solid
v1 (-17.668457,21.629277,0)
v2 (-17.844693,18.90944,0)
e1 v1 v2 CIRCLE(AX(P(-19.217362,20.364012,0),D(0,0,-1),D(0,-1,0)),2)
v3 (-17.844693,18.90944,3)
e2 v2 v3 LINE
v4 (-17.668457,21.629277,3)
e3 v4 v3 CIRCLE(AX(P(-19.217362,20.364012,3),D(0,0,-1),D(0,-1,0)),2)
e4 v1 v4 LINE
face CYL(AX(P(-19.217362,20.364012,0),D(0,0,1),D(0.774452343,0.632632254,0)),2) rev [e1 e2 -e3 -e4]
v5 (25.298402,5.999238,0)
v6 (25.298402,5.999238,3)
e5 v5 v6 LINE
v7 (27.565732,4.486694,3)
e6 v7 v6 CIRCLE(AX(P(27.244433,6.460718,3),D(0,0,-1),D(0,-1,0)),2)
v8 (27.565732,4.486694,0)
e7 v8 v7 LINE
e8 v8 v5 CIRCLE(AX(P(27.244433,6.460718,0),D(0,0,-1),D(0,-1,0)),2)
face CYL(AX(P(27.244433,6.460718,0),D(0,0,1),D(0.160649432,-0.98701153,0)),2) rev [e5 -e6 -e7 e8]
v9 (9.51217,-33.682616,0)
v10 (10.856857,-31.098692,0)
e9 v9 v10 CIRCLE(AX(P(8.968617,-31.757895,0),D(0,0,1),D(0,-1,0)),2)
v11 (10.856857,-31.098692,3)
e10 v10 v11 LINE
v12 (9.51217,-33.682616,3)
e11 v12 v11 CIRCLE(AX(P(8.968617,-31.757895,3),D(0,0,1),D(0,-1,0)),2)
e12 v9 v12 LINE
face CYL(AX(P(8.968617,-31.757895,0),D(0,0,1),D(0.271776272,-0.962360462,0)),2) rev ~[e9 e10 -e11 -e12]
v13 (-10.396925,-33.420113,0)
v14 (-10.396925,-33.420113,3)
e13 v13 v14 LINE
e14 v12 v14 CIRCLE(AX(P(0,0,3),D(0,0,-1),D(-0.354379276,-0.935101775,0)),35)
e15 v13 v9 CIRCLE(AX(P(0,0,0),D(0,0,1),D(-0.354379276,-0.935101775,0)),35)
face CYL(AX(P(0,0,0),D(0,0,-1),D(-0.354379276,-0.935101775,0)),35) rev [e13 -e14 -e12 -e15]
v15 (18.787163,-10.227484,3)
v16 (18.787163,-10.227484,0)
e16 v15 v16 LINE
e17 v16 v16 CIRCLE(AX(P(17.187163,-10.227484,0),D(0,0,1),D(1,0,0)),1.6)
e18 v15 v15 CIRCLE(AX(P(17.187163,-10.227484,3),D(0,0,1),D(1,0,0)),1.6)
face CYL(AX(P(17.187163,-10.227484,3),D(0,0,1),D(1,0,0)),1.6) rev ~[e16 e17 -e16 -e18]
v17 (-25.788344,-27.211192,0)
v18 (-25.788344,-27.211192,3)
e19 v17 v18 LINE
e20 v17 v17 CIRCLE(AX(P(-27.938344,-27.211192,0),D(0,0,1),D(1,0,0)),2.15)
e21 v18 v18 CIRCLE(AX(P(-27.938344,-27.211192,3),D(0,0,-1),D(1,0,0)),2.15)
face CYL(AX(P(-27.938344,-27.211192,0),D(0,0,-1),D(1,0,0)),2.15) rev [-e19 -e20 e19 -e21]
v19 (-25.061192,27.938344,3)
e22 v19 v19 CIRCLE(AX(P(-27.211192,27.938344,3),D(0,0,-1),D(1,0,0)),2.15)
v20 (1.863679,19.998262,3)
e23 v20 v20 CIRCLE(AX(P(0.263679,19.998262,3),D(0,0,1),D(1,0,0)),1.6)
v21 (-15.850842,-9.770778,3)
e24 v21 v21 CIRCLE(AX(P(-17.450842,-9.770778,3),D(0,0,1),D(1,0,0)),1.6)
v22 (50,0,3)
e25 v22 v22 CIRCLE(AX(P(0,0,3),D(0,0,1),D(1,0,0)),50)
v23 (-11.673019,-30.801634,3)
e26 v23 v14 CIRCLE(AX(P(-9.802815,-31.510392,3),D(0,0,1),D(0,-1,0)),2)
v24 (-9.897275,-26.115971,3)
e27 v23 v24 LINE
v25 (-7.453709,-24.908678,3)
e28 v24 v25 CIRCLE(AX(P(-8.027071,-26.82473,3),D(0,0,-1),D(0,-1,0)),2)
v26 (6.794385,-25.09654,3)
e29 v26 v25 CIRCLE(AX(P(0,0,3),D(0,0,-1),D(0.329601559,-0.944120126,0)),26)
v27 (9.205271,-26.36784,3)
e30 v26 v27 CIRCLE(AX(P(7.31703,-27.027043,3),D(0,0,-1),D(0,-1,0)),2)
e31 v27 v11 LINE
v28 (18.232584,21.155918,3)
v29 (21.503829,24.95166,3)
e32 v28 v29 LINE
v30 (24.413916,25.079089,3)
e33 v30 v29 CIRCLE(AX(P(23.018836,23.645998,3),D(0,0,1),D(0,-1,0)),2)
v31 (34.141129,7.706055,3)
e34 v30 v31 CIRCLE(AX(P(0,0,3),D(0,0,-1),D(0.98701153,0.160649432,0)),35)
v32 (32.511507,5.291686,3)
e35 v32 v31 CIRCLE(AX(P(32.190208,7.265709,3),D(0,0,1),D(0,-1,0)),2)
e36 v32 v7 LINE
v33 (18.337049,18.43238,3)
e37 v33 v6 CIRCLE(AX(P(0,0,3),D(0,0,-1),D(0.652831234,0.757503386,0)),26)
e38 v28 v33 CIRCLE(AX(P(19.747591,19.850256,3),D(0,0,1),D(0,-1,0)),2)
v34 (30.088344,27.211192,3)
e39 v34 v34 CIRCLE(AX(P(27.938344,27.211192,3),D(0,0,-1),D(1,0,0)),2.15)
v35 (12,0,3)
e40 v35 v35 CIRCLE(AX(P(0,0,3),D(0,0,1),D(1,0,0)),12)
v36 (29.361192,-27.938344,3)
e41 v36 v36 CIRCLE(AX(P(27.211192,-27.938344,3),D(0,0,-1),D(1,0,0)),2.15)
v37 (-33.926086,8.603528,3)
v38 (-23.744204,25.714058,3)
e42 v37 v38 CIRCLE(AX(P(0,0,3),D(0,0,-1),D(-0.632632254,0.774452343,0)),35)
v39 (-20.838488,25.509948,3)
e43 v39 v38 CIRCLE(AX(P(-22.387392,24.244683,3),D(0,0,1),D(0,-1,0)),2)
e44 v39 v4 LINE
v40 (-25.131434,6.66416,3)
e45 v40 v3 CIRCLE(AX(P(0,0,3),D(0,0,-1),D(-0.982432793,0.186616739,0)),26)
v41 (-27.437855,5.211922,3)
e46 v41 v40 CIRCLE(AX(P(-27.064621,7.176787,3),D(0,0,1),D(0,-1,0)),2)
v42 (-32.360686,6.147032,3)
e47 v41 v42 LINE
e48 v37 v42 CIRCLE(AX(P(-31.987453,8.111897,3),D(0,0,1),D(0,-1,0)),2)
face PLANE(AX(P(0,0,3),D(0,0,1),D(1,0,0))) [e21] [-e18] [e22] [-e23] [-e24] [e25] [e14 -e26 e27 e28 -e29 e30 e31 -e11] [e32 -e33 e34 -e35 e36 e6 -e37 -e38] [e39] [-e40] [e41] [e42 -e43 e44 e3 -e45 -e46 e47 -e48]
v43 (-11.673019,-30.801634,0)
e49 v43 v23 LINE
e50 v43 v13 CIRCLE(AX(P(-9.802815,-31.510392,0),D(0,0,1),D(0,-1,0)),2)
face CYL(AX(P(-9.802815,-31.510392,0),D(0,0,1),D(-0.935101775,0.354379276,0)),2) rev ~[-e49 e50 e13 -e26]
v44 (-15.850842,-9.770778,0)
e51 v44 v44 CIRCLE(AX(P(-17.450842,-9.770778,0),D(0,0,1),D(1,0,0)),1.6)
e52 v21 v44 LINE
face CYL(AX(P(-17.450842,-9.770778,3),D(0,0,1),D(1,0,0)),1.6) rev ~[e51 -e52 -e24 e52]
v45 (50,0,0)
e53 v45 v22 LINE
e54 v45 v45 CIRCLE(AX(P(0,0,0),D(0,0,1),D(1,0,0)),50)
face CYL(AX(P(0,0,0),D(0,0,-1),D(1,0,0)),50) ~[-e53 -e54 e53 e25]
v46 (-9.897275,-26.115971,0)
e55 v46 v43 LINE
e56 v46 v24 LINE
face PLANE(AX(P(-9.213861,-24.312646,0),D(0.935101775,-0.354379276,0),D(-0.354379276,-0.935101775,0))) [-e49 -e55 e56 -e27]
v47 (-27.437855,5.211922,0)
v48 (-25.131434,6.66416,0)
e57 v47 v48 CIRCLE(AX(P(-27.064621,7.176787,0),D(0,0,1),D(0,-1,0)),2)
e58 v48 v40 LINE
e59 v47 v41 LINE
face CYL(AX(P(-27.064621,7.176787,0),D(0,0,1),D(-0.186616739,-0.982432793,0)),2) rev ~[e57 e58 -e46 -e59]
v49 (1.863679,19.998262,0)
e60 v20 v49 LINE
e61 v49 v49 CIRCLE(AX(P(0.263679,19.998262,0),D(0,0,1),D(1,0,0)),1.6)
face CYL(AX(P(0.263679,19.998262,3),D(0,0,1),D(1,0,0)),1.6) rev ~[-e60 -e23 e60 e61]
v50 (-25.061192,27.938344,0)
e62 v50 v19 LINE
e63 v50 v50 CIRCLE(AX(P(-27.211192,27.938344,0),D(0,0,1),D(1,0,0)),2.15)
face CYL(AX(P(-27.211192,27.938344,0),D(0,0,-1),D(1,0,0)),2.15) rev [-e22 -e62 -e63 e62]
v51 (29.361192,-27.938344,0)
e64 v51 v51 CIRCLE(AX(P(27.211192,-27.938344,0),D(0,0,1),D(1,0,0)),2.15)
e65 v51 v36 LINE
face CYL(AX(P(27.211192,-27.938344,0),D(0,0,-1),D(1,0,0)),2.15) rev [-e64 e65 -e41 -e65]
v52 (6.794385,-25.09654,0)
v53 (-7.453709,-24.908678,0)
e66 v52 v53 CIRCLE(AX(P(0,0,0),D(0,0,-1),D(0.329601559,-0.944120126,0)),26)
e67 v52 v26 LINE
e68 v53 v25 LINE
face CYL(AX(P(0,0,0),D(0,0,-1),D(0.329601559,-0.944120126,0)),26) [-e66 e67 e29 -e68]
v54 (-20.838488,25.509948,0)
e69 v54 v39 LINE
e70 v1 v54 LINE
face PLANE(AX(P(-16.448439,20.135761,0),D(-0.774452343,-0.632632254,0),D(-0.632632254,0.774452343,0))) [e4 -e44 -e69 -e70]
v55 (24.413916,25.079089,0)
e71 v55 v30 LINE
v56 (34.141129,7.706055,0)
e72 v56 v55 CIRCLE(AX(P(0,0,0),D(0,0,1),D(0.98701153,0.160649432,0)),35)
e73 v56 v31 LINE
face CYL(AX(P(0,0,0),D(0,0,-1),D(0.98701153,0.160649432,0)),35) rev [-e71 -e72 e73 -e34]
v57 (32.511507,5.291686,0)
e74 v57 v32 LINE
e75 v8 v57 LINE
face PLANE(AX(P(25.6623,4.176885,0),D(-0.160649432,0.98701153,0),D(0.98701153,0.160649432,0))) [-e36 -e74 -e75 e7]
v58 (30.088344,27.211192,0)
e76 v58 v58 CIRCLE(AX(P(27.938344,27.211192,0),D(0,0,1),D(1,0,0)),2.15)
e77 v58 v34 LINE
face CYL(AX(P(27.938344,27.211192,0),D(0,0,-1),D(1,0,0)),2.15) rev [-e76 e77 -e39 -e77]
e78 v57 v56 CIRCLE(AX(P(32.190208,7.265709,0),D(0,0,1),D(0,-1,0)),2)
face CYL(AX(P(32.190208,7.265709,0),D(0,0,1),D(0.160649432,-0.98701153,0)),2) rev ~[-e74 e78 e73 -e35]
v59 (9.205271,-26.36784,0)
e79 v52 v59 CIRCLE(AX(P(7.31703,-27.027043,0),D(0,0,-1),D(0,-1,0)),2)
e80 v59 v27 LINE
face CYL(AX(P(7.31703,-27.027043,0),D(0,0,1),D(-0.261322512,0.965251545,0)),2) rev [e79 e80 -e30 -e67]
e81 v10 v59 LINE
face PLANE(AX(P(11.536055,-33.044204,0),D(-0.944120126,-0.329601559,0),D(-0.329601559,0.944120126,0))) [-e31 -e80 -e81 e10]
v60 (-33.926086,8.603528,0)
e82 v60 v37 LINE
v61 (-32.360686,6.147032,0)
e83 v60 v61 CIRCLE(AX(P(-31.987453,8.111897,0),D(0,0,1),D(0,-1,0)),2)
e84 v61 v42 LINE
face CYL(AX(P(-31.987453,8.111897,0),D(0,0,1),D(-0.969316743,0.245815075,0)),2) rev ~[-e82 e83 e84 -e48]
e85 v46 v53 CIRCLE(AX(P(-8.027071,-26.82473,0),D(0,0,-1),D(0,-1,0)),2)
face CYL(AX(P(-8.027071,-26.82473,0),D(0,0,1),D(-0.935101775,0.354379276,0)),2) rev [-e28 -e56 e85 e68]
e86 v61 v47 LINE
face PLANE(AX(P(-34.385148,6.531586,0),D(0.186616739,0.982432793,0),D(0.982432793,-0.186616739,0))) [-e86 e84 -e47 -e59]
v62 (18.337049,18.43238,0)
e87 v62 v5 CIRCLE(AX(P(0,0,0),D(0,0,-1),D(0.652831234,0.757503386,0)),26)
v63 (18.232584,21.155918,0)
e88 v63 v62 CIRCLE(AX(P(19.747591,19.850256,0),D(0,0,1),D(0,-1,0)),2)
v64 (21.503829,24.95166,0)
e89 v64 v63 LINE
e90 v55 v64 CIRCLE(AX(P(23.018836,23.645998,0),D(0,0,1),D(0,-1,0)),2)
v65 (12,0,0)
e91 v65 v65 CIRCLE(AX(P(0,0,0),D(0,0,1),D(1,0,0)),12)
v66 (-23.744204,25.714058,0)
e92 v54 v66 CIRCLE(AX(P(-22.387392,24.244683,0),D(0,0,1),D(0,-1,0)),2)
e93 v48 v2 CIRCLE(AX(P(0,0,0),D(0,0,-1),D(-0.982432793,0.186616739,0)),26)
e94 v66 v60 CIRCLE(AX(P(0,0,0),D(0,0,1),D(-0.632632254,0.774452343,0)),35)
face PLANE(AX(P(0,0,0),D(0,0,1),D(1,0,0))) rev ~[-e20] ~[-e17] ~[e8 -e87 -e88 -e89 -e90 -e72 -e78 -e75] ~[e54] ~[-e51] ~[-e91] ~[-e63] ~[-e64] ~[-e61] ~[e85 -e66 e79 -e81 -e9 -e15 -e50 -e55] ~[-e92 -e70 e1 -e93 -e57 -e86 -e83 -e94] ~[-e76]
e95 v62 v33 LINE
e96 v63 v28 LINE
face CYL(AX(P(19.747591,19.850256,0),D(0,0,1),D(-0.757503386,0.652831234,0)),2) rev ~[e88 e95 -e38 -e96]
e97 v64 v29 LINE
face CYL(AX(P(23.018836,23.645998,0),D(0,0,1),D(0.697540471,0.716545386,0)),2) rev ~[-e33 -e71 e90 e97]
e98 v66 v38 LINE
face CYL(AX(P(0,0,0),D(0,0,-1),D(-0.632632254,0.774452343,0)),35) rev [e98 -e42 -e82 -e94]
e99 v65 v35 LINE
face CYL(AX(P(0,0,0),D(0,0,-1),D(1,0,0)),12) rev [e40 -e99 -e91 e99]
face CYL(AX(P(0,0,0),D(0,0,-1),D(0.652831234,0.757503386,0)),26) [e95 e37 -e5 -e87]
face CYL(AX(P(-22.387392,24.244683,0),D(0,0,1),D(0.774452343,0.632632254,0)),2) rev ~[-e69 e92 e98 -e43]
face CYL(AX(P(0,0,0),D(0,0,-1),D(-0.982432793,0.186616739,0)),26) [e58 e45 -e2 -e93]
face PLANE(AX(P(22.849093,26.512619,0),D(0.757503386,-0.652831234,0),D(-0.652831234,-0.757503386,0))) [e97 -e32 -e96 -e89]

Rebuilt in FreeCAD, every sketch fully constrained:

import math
import FreeCAD as App
import Part
import Sketcher
from FreeCAD import Vector


def edges_at(feature, points):
    """Names of the edges that pass closest to the given points."""
    edges = feature.Shape.Edges
    near = lambda p: min(range(len(edges)), key=lambda i: edges[i].distToShape(Part.Vertex(*p))[0])
    return sorted({f"Edge{near(p) + 1}" for p in points})

doc = App.newDocument("Part")
body = doc.addObject("PartDesign::Body", "Body")

# Sketch on XY plane
sketch1 = doc.addObject("Sketcher::SketchObject", "Sketch")
body.addObject(sketch1)
sketch1.AttachmentSupport = (doc.XY_Plane, [""])
sketch1.MapMode = "FlatFace"
sketch1.addGeometry([
    Part.Circle(Vector(0, 0, 0), Vector(0, 0, 1), 50),
    Part.Circle(Vector(0, 0, 0), Vector(0, 0, 1), 12),
], False)
sketch1.addConstraint([
    Sketcher.Constraint("Coincident", 0, 3, -1, 1),
    Sketcher.Constraint("Coincident", 1, 3, -1, 1),
    Sketcher.Constraint("Diameter", 0, 100.0),
    Sketcher.Constraint("Diameter", 1, 24.0),
])
pad1 = doc.addObject("PartDesign::Pad", "Pad")
body.addObject(pad1)
pad1.Profile = sketch1
pad1.Length = 3

# Sketch on XY plane
sketch2 = doc.addObject("Sketcher::SketchObject", "Sketch001")
body.addObject(sketch2)
sketch2.AttachmentSupport = (doc.XY_Plane, [""])
sketch2.MapMode = "FlatFace"
sketch2.AttachmentOffset = App.Placement(Vector(0, 0, 3), App.Rotation())
sketch2.addGeometry([
    Part.Circle(Vector(0.263679, 19.998262, 0), Vector(0, 0, 1), 1.6),
    Part.Circle(Vector(17.187163, -10.227484, 0), Vector(0, 0, 1), 1.6),
    Part.Circle(Vector(-17.450842, -9.770778, 0), Vector(0, 0, 1), 1.6),
], False)
sketch2.addConstraint([
    Sketcher.Constraint("Equal", 0, 1),
    Sketcher.Constraint("Equal", 1, 2),
    Sketcher.Constraint("Diameter", 0, 3.2),
    Sketcher.Constraint("DistanceX", -1, 1, 0, 3, 0.263679),
    Sketcher.Constraint("DistanceY", -1, 1, 0, 3, 19.998262),
    Sketcher.Constraint("DistanceY", 2, 3, -1, 1, 9.770778),
    Sketcher.Constraint("DistanceX", 2, 3, 0, 3, 17.714521),
    Sketcher.Constraint("DistanceX", -1, 1, 1, 3, 17.187163),
    Sketcher.Constraint("DistanceY", 1, 3, -1, 1, 10.227484),
])
pocket1 = doc.addObject("PartDesign::Pocket", "Pocket")
body.addObject(pocket1)
pocket1.Profile = sketch2
pocket1.Type = "ThroughAll"

# Sketch on XY plane
sketch3 = doc.addObject("Sketcher::SketchObject", "Sketch002")
body.addObject(sketch3)
sketch3.AttachmentSupport = (doc.XY_Plane, [""])
sketch3.MapMode = "FlatFace"
sketch3.addGeometry([
    Part.LineSegment(Vector(-22.142129, 27.105832, 0), Vector(-16.448439, 20.135761, 0)),
    Part.ArcOfCircle(Part.Circle(Vector(0, 0, 0), Vector(0, 0, 1), 26), math.radians(129.244594), math.radians(169.244594)),
    Part.LineSegment(Vector(-25.543253, 4.852035, 0), Vector(-34.385148, 6.531586, 0)),
    Part.ArcOfCircle(Part.Circle(Vector(0, 0, 0), Vector(0, 0, 1), 35), math.radians(129.244594), math.radians(169.244594)),
], False)
sketch3.addConstraint([
    Sketcher.Constraint("Coincident", 0, 2, 1, 1),
    Sketcher.Constraint("Coincident", 1, 2, 2, 1),
    Sketcher.Constraint("Coincident", 2, 2, 3, 2),
    Sketcher.Constraint("Coincident", 3, 1, 0, 1),
    Sketcher.Constraint("Coincident", 1, 3, -1, 1),
    Sketcher.Constraint("Coincident", 3, 3, -1, 1),
    Sketcher.Constraint("Radius", 1, 26.0),
    Sketcher.Constraint("Radius", 3, 35.0),
    Sketcher.Constraint("DistanceX", 0, 2, -1, 1, 16.448439),
    Sketcher.Constraint("DistanceX", 3, 1, -1, 1, 22.142129),
    Sketcher.Constraint("DistanceY", 1, 2, 2, 2, 1.679551),
    Sketcher.Constraint("DistanceX", 2, 2, 0, 2, 17.936709),
])
pocket2 = doc.addObject("PartDesign::Pocket", "Pocket001")
body.addObject(pocket2)
pocket2.Profile = sketch3
pocket2.Type = "ThroughAll"
pocket2.Reversed = True
doc.recompute()

fillet = doc.addObject("PartDesign::Fillet", "Fillet")
body.addObject(fillet)
fillet.Base = (pocket2, edges_at(pocket2, [
    (-25.543, 4.852, 1.5),
    (-16.448, 20.136, 1.5),
    (-22.142, 27.106, 1.5),
    (-34.385, 6.532, 1.5),
]))
fillet.Radius = 2
doc.recompute()

polarpattern = doc.addObject("PartDesign::PolarPattern", "PolarPattern")
body.addObject(polarpattern)
polarpattern.Originals = [pocket2]
polarpattern.Axis = (doc.Z_Axis, [""])
polarpattern.Angle = 360
polarpattern.Occurrences = 3
body.Tip = polarpattern
doc.recompute()

fillet2 = doc.addObject("PartDesign::Fillet", "Fillet001")
body.addObject(fillet2)
fillet2.Base = (polarpattern, edges_at(polarpattern, [
    (8.57, -24.547, 1.5),
    (-9.214, -24.313, 1.5),
    (-12.403, -32.729, 1.5),
    (11.536, -33.044, 1.5),
    (16.974, 19.695, 1.5),
    (25.662, 4.177, 1.5),
    (34.545, 5.623, 1.5),
    (22.849, 26.513, 1.5),
]))
fillet2.Radius = 2

# Sketch on XY plane
sketch4 = doc.addObject("Sketcher::SketchObject", "Sketch003")
body.addObject(sketch4)
sketch4.AttachmentSupport = (doc.XY_Plane, [""])
sketch4.MapMode = "FlatFace"
sketch4.addGeometry([
    Part.Circle(Vector(27.938344, 27.211192, 0), Vector(0, 0, 1), 2.15),
    Part.Circle(Vector(27.211192, -27.938344, 0), Vector(0, 0, 1), 2.15),
    Part.Circle(Vector(-27.938344, -27.211192, 0), Vector(0, 0, 1), 2.15),
    Part.Circle(Vector(-27.211192, 27.938344, 0), Vector(0, 0, 1), 2.15),
], False)
sketch4.addConstraint([
    Sketcher.Constraint("Equal", 0, 1),
    Sketcher.Constraint("Equal", 1, 2),
    Sketcher.Constraint("Equal", 2, 3),
    Sketcher.Constraint("Symmetric", 0, 3, 2, 3, -1, 1),
    Sketcher.Constraint("Symmetric", 1, 3, 3, 3, -1, 1),
    Sketcher.Constraint("Diameter", 0, 4.3),
    Sketcher.Constraint("DistanceY", -1, 1, 0, 3, 27.211192),
    Sketcher.Constraint("DistanceX", -1, 1, 1, 3, 27.211192),
    Sketcher.Constraint("DistanceX", 1, 3, 0, 3, 0.727152),
    Sketcher.Constraint("DistanceY", 1, 3, 2, 3, 0.727152),
])
pocket3 = doc.addObject("PartDesign::Pocket", "Pocket002")
body.addObject(pocket3)
pocket3.Profile = sketch4
pocket3.Length = 10
pocket3.Reversed = True

doc.recompute()
